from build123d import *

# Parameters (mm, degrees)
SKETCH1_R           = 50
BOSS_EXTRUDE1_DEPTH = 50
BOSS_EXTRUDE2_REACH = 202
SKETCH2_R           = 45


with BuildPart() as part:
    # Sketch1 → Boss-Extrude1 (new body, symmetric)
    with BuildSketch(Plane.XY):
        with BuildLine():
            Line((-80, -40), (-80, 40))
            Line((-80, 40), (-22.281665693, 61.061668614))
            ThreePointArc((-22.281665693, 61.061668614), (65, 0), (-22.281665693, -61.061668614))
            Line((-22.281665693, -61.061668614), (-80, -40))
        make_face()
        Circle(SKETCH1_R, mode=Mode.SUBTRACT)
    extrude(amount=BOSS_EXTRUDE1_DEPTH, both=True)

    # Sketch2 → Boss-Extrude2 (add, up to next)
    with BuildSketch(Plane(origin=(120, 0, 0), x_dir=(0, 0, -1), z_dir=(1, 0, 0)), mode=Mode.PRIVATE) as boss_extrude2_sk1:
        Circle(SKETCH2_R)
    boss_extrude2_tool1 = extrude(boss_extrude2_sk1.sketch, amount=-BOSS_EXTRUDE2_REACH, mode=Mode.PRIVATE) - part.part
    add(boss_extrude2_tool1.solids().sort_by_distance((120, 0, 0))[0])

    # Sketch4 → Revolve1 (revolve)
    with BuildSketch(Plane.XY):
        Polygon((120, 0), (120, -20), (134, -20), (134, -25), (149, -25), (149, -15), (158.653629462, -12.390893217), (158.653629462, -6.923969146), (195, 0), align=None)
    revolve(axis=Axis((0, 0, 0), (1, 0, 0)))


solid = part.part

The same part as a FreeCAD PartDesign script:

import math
import FreeCAD as App
import Part
import Sketcher

V = App.Vector


def add_polygon(sketch, points):
    """Adds a closed chain of lines whose ends are joined by coincident constraints."""
    first, n = sketch.GeometryCount, len(points)
    for a, b in zip(points, points[1:] + points[:1]):
        sketch.addGeometry(Part.LineSegment(App.Vector(*a, 0), App.Vector(*b, 0)), False)
    for i in range(n):
        sketch.addConstraint(Sketcher.Constraint("Coincident", first + i, 2, first + (i + 1) % n, 1))

doc = App.newDocument("Part")
body = doc.addObject("PartDesign::Body", "Body")

# Sketch on XY plane
sketch1 = body.newObject("Sketcher::SketchObject", "Sketch")
sketch1.AttachmentSupport = (doc.getObject("XY_Plane"), [""])
sketch1.MapMode = "FlatFace"
sketch1.addGeometry(Part.LineSegment(V(-80, 40, 0), V(-80, -40, 0)), False)
sketch1.addGeometry(Part.LineSegment(V(-80, -40, 0), V(-22.281666, -61.061669, 0)), False)
sketch1.addGeometry(Part.ArcOfCircle(Part.Circle(V(0, 0, 0), V(0, 0, 1), 65), math.radians(-110.047244), math.radians(110.047244)), False)
sketch1.addGeometry(Part.LineSegment(V(-22.281666, 61.061669, 0), V(-80, 40, 0)), False)
sketch1.addGeometry(Part.Circle(V(0, 0, 0), V(0, 0, 1), 50), False)
sketch1.addConstraint(Sketcher.Constraint("Coincident", 0, 2, 1, 1))
sketch1.addConstraint(Sketcher.Constraint("Tangent", 1, 2, 2, 1))
sketch1.addConstraint(Sketcher.Constraint("Tangent", 2, 2, 3, 1))
sketch1.addConstraint(Sketcher.Constraint("Coincident", 3, 2, 0, 1))
sketch1.addConstraint(Sketcher.Constraint("Vertical", 0))
sketch1.addConstraint(Sketcher.Constraint("Coincident", 2, 3, -1, 1))
sketch1.addConstraint(Sketcher.Constraint("Coincident", 4, 3, -1, 1))
sketch1.addConstraint(Sketcher.Constraint("Vertical", 1, 2, 2, 2))
sketch1.addConstraint(Sketcher.Constraint("Diameter", 4, 100.0))
sketch1.addConstraint(Sketcher.Constraint("Radius", 2, 65.0))
sketch1.addConstraint(Sketcher.Constraint("DistanceY", 0, 2, 0, 1, 80.0))
sketch1.addConstraint(Sketcher.Constraint("DistanceX", 0, 2, -1, 1, 80.0))
pad1 = body.newObject("PartDesign::Pad", "Pad")
pad1.Profile = sketch1
pad1.Length = 100
pad1.Midplane = True

# Sketch on YZ plane
sketch2 = body.newObject("Sketcher::SketchObject", "Sketch001")
sketch2.AttachmentSupport = (doc.getObject("YZ_Plane"), [""])
sketch2.MapMode = "FlatFace"
sketch2.AttachmentOffset = App.Placement(V(0, 0, 120), App.Rotation())
sketch2.addGeometry(Part.Circle(V(0, 0, 0), V(0, 0, 1), 45), False)
sketch2.addConstraint(Sketcher.Constraint("Coincident", 0, 3, -1, 1))
sketch2.addConstraint(Sketcher.Constraint("Diameter", 0, 90.0))
pad2 = body.newObject("PartDesign::Pad", "Pad001")
pad2.Profile = sketch2
pad2.Type = "UpToFirst"
pad2.Reversed = True

# Sketch on XY plane
sketch3 = body.newObject("Sketcher::SketchObject", "Sketch002")
sketch3.AttachmentSupport = (doc.getObject("XY_Plane"), [""])
sketch3.MapMode = "FlatFace"
add_polygon(sketch3, [(120, 0), (120, -20), (134, -20), (134, -25), (149, -25), (149, -15), (158.653629, -12.390893), (158.653629, -6.923969), (195, 0)])  # lines 0-8
sketch3.addConstraint(Sketcher.Constraint("Vertical", 0))
sketch3.addConstraint(Sketcher.Constraint("Horizontal", 1))
sketch3.addConstraint(Sketcher.Constraint("Vertical", 2))
sketch3.addConstraint(Sketcher.Constraint("Horizontal", 3))
sketch3.addConstraint(Sketcher.Constraint("Vertical", 4))
sketch3.addConstraint(Sketcher.Constraint("Vertical", 6))
sketch3.addConstraint(Sketcher.Constraint("Horizontal", 8))
sketch3.addConstraint(Sketcher.Constraint("PointOnObject", 7, 2, -1))
sketch3.addConstraint(Sketcher.Constraint("DistanceX", 1, 1, 1, 2, 14.0))
sketch3.addConstraint(Sketcher.Constraint("DistanceX", 3, 1, 3, 2, 15.0))
sketch3.addConstraint(Sketcher.Constraint("DistanceX", 8, 2, 8, 1, 75.0))
sketch3.addConstraint(Sketcher.Constraint("DistanceY", 0, 2, 0, 1, 20.0))
sketch3.addConstraint(Sketcher.Constraint("DistanceY", 2, 2, 2, 1, 5.0))
sketch3.addConstraint(Sketcher.Constraint("DistanceY", 4, 1, 4, 2, 10.0))
sketch3.addConstraint(Sketcher.Constraint("Distance", 5, 10.0))
sketch3.addConstraint(Sketcher.Constraint("Distance", 7, 37.0))
sketch3.addConstraint(Sketcher.Constraint("DistanceX", -1, 1, 0, 2, 120.0))
sketch3.addConstraint(Sketcher.Constraint("DistanceY", 6, 1, 6, 2, 5.466924))
revolution = body.newObject("PartDesign::Revolution", "Revolution")
revolution.Profile = sketch3
revolution.ReferenceAxis = (sketch3, ["H_Axis"])
revolution.Angle = 360

doc.recompute()
